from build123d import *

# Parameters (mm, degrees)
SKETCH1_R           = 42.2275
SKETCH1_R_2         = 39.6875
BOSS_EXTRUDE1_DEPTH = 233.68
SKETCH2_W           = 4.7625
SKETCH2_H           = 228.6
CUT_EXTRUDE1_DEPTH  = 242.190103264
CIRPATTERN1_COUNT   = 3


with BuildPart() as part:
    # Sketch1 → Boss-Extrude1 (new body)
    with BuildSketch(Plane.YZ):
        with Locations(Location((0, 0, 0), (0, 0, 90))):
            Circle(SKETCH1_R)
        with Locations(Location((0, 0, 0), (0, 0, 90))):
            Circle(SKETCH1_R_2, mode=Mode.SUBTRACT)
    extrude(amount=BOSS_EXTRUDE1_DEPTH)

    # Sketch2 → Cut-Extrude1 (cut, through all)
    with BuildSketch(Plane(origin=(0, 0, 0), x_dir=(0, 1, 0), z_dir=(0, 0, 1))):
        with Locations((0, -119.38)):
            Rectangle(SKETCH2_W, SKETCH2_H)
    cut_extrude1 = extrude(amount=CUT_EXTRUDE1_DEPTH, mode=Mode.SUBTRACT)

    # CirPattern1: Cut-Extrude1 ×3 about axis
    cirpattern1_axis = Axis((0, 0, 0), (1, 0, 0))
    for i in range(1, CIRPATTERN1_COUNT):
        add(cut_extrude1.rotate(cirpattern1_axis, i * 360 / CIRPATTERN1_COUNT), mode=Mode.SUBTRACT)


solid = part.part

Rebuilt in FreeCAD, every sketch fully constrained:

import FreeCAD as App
import Part
import Sketcher

V = App.Vector
Q = App.Units.Quantity

doc = App.newDocument("Part")
params = doc.addObject("Spreadsheet::Sheet", "Params")
for row, (alias, value) in enumerate([
    ("sketch1_diameter", "3.325 in"),
    ("sketch1_diameter2", "3.125 in"),
    ("pad1_length", "9.2 in"),
    ("sketch2_width", "9 in"),
    ("sketch2_height", "0.1875 in"),
], start=1):
    params.set(f"A{row}", alias)
    params.set(f"B{row}", "=" + value)
    params.setAlias(f"B{row}", alias)

body = doc.addObject("PartDesign::Body", "Body")

# Sketch on YZ plane
sketch1 = body.newObject("Sketcher::SketchObject", "Sketch")
sketch1.AttachmentSupport = (doc.getObject("YZ_Plane"), [""])
sketch1.MapMode = "FlatFace"
sketch1.addGeometry([
    Part.Circle(V(0, 0, 0), V(0, 0, 1), 42),
    Part.Circle(V(0, 0, 0), V(0, 0, 1), 40),
], False)
sketch1.addConstraint([
    Sketcher.Constraint("Coincident", 0, 3, -1, 1),
    Sketcher.Constraint("Coincident", 1, 3, -1, 1),
    Sketcher.Constraint("Diameter", 0, Q("3.325 in")),
    Sketcher.Constraint("Diameter", 1, Q("3.125 in")),
])
sketch1.setExpression("Constraints[2]", "Params.sketch1_diameter")
sketch1.setExpression("Constraints[3]", "Params.sketch1_diameter2")
pad1 = body.newObject("PartDesign::Pad", "Pad")
pad1.Profile = sketch1
pad1.setExpression("Length", "Params.pad1_length")

# Sketch on XY plane
sketch2 = body.newObject("Sketcher::SketchObject", "Sketch001")
sketch2.AttachmentSupport = (doc.getObject("XY_Plane"), [""])
sketch2.MapMode = "FlatFace"
sketch2.addGeometry([
    Part.LineSegment(V(5.1, -2.4, 0), V(233.7, -2.4, 0)),
    Part.LineSegment(V(233.7, -2.4, 0), V(233.7, 2.4, 0)),
    Part.LineSegment(V(233.7, 2.4, 0), V(5.1, 2.4, 0)),
    Part.LineSegment(V(5.1, 2.4, 0), V(5.1, -2.4, 0)),
], False)
sketch2.addConstraint([
    Sketcher.Constraint("Coincident", 0, 2, 1, 1),
    Sketcher.Constraint("Coincident", 1, 2, 2, 1),
    Sketcher.Constraint("Coincident", 2, 2, 3, 1),
    Sketcher.Constraint("Coincident", 3, 2, 0, 1),
    Sketcher.Constraint("Horizontal", 0),
    Sketcher.Constraint("Vertical", 1),
    Sketcher.Constraint("Horizontal", 2),
    Sketcher.Constraint("Vertical", 3),
    Sketcher.Constraint("DistanceX", 0, 1, 0, 2, Q("9 in")),
    Sketcher.Constraint("DistanceX", -1, 1, 0, 2, Q("9.2 in")),
    Sketcher.Constraint("DistanceY", 1, 1, 1, 2, Q("0.1875 in")),
    Sketcher.Constraint("DistanceY", 0, 2, -1, 1, Q("0.09375 in")),
])
sketch2.setExpression("Constraints[8]", "Params.sketch2_width")
sketch2.setExpression("Constraints[10]", "Params.sketch2_height")
pocket1 = body.newObject("PartDesign::Pocket", "Pocket")
pocket1.Profile = sketch2
pocket1.Type = "ThroughAll"
pocket1.Reversed = True
doc.recompute()

polarpattern = body.newObject("PartDesign::PolarPattern", "PolarPattern")
polarpattern.Originals = [pocket1]
polarpattern.Axis = (doc.getObject("X_Axis"), [""])
polarpattern.Angle = 360
polarpattern.Occurrences = 3
body.Tip = polarpattern

doc.recompute()
